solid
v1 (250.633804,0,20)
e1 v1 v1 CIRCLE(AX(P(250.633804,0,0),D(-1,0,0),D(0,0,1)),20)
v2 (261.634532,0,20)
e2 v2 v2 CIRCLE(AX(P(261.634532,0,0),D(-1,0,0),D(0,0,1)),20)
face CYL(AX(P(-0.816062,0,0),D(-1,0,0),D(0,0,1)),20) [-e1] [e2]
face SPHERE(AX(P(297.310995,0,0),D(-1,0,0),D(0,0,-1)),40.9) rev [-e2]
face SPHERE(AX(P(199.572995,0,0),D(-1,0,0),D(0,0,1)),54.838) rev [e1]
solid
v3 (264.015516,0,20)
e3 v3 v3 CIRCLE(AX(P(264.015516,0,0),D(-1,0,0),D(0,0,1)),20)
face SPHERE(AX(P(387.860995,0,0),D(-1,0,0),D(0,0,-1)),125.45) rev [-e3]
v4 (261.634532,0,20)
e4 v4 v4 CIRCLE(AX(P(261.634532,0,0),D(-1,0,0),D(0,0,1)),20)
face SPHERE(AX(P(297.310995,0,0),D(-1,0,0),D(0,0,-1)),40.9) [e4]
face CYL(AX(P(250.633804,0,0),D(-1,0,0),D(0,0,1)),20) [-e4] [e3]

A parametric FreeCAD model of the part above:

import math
import FreeCAD as App
import Part
import Sketcher

doc = App.newDocument("Part")
body = doc.addObject("PartDesign::Body", "Body")

# Sketch on XZ plane
sketch1 = body.newObject("Sketcher::SketchObject", "Sketch")
sketch1.AttachmentSupport = (doc.getObject("XZ_Plane"), [""])
sketch1.MapMode = "FlatFace"
sketch1.addGeometry(Part.LineSegment(App.Vector(261.6, -20, 0), App.Vector(250.6, -20, 0)), False)
sketch1.addGeometry(Part.ArcOfCircle(Part.Circle(App.Vector(199.6, 0, 0), App.Vector(0, 0, 1), 54.8), math.radians(-21), math.radians(0)), False)
sketch1.addGeometry(Part.LineSegment(App.Vector(254.4, 0, 0), App.Vector(256.4, 0, 0)), False)
sketch1.addGeometry(Part.ArcOfCircle(Part.Circle(App.Vector(297.3, 0, 0), App.Vector(0, 0, 1), 40.9), math.radians(180), math.radians(209)), False)
sketch1.addConstraint(Sketcher.Constraint("Coincident", 0, 2, 1, 1))
sketch1.addConstraint(Sketcher.Constraint("Coincident", 1, 2, 2, 1))
sketch1.addConstraint(Sketcher.Constraint("Coincident", 2, 2, 3, 1))
sketch1.addConstraint(Sketcher.Constraint("Coincident", 3, 2, 0, 1))
sketch1.addConstraint(Sketcher.Constraint("Horizontal", 0))
sketch1.addConstraint(Sketcher.Constraint("Horizontal", 2))
sketch1.addConstraint(Sketcher.Constraint("PointOnObject", 1, 3, -1))
sketch1.addConstraint(Sketcher.Constraint("PointOnObject", 3, 3, -1))
sketch1.addConstraint(Sketcher.Constraint("PointOnObject", 1, 2, -1))
sketch1.addConstraint(Sketcher.Constraint("Radius", 3, 40.9))
sketch1.addConstraint(Sketcher.Constraint("DistanceX", 2, 1, 2, 2, 2.0))
sketch1.addConstraint(Sketcher.Constraint("DistanceY", 0, 2, -1, 1, 20.0))
sketch1.addConstraint(Sketcher.Constraint("Radius", 1, 54.838))
sketch1.addConstraint(Sketcher.Constraint("DistanceX", -1, 1, 3, 2, 261.634532))
revolution = body.newObject("PartDesign::Revolution", "Revolution")
revolution.Profile = sketch1
revolution.ReferenceAxis = (sketch1, ["H_Axis"])
revolution.Angle = 360
body2 = doc.addObject("PartDesign::Body", "Body001")

# Sketch on XZ plane
sketch2 = body2.newObject("Sketcher::SketchObject", "Sketch001")
sketch2.AttachmentSupport = (doc.getObject("XZ_Plane001"), [""])
sketch2.MapMode = "FlatFace"
sketch2.addGeometry(Part.LineSegment(App.Vector(264, -20, 0), App.Vector(261.6, -20, 0)), False)
sketch2.addGeometry(Part.ArcOfCircle(Part.Circle(App.Vector(297.3, 0, 0), App.Vector(0, 0, 1), 40.9), math.radians(180), math.radians(209)), False)
sketch2.addGeometry(Part.LineSegment(App.Vector(256.4, 0, 0), App.Vector(262.4, 0, 0)), False)
sketch2.addGeometry(Part.ArcOfCircle(Part.Circle(App.Vector(387.9, 0, 0), App.Vector(0, 0, 1), 125.5), math.radians(-180), math.radians(-170.83)), False)
sketch2.addConstraint(Sketcher.Constraint("Coincident", 0, 2, 1, 2))
sketch2.addConstraint(Sketcher.Constraint("Coincident", 1, 1, 2, 1))
sketch2.addConstraint(Sketcher.Constraint("Coincident", 2, 2, 3, 1))
sketch2.addConstraint(Sketcher.Constraint("Coincident", 3, 2, 0, 1))
sketch2.addConstraint(Sketcher.Constraint("Horizontal", 0))
sketch2.addConstraint(Sketcher.Constraint("Horizontal", 2))
sketch2.addConstraint(Sketcher.Constraint("PointOnObject", 1, 3, -1))
sketch2.addConstraint(Sketcher.Constraint("PointOnObject", 3, 3, -1))
sketch2.addConstraint(Sketcher.Constraint("PointOnObject", 1, 1, -1))
sketch2.addConstraint(Sketcher.Constraint("Radius", 1, 40.9))
sketch2.addConstraint(Sketcher.Constraint("DistanceX", 2, 1, 2, 2, 6.0))
sketch2.addConstraint(Sketcher.Constraint("Radius", 3, 125.45))
sketch2.addConstraint(Sketcher.Constraint("DistanceY", 0, 2, -1, 1, 20.0))
sketch2.addConstraint(Sketcher.Constraint("DistanceX", -1, 1, 0, 2, 261.634532))
revolution2 = body2.newObject("PartDesign::Revolution", "Revolution001")
revolution2.Profile = sketch2
revolution2.ReferenceAxis = (sketch2, ["H_Axis"])
revolution2.Angle = 360

doc.recompute()
